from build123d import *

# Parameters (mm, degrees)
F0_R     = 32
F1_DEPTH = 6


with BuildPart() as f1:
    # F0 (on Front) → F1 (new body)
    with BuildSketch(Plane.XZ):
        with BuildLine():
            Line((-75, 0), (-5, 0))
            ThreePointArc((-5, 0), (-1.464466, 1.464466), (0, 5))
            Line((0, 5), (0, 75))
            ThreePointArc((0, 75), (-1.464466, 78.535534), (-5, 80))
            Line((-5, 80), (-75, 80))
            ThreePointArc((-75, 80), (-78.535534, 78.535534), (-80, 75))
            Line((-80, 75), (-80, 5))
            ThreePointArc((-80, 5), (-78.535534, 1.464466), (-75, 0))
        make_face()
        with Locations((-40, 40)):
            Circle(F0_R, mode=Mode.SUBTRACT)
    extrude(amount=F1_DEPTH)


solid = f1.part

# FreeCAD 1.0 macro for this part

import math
import FreeCAD as App
import Part
import Sketcher

V = App.Vector
Q = App.Units.Quantity

doc = App.newDocument("Part")
body = doc.addObject("PartDesign::Body", "Body")

sketch1 = body.newObject("Sketcher::SketchObject", "Sketch")
sketch1.AttachmentSupport = (doc.getObject("XZ_Plane"), [""])
sketch1.MapMode = "FlatFace"
sketch1.addGeometry([
    Part.LineSegment(V(-75, 0, 0), V(-5, 0, 0)),
    Part.ArcOfCircle(Part.Circle(V(-5, 5, 0), V(0, 0, 1), 5), math.radians(-90.000004), math.radians(0.000004)),
    Part.LineSegment(V(0, 5, 0), V(0, 75, 0)),
    Part.ArcOfCircle(Part.Circle(V(-5, 75, 0), V(0, 0, 1), 5), math.radians(-0.000004), math.radians(90.000004)),
    Part.LineSegment(V(-5, 80, 0), V(-75, 80, 0)),
    Part.ArcOfCircle(Part.Circle(V(-75, 75, 0), V(0, 0, 1), 5), math.radians(89.999996), math.radians(180.000004)),
    Part.LineSegment(V(-80, 75, 0), V(-80, 5, 0)),
    Part.ArcOfCircle(Part.Circle(V(-75, 5, 0), V(0, 0, 1), 5), math.radians(179.999996), math.radians(270.000004)),
    Part.Circle(V(-40, 40, 0), V(0, 0, 1), 32),
], False)
sketch1.addConstraint([
    Sketcher.Constraint("Tangent", 0, 2, 1, 1),
    Sketcher.Constraint("Tangent", 1, 2, 2, 1),
    Sketcher.Constraint("Tangent", 2, 2, 3, 1),
    Sketcher.Constraint("Tangent", 3, 2, 4, 1),
    Sketcher.Constraint("Tangent", 4, 2, 5, 1),
    Sketcher.Constraint("Tangent", 5, 2, 6, 1),
    Sketcher.Constraint("Tangent", 6, 2, 7, 1),
    Sketcher.Constraint("Tangent", 7, 2, 0, 1),
    Sketcher.Constraint("Horizontal", 0),
    Sketcher.Constraint("Vertical", 2),
    Sketcher.Constraint("Horizontal", 4),
    Sketcher.Constraint("Vertical", 6),
    Sketcher.Constraint("Equal", 1, 3),
    Sketcher.Constraint("Equal", 3, 5),
    Sketcher.Constraint("Equal", 5, 7),
    Sketcher.Constraint("PointOnObject", 0, 2, -1),
    Sketcher.Constraint("PointOnObject", 1, 2, -2),
    Sketcher.Constraint("Equal", 4, 2),
    Sketcher.Constraint("Diameter", 8, Q("64 mm")),
    Sketcher.Constraint("Radius", 1, Q("5 mm")),
    Sketcher.Constraint("DistanceX", 0, 1, 0, 2, Q("70 mm")),
    Sketcher.Constraint("DistanceX", 8, 3, -1, 1, Q("40 mm")),
    Sketcher.Constraint("DistanceY", -1, 1, 8, 3, Q("40 mm")),
])
pad1 = body.newObject("PartDesign::Pad", "Pad")
pad1.Profile = sketch1
pad1.Length = 6

doc.recompute()
